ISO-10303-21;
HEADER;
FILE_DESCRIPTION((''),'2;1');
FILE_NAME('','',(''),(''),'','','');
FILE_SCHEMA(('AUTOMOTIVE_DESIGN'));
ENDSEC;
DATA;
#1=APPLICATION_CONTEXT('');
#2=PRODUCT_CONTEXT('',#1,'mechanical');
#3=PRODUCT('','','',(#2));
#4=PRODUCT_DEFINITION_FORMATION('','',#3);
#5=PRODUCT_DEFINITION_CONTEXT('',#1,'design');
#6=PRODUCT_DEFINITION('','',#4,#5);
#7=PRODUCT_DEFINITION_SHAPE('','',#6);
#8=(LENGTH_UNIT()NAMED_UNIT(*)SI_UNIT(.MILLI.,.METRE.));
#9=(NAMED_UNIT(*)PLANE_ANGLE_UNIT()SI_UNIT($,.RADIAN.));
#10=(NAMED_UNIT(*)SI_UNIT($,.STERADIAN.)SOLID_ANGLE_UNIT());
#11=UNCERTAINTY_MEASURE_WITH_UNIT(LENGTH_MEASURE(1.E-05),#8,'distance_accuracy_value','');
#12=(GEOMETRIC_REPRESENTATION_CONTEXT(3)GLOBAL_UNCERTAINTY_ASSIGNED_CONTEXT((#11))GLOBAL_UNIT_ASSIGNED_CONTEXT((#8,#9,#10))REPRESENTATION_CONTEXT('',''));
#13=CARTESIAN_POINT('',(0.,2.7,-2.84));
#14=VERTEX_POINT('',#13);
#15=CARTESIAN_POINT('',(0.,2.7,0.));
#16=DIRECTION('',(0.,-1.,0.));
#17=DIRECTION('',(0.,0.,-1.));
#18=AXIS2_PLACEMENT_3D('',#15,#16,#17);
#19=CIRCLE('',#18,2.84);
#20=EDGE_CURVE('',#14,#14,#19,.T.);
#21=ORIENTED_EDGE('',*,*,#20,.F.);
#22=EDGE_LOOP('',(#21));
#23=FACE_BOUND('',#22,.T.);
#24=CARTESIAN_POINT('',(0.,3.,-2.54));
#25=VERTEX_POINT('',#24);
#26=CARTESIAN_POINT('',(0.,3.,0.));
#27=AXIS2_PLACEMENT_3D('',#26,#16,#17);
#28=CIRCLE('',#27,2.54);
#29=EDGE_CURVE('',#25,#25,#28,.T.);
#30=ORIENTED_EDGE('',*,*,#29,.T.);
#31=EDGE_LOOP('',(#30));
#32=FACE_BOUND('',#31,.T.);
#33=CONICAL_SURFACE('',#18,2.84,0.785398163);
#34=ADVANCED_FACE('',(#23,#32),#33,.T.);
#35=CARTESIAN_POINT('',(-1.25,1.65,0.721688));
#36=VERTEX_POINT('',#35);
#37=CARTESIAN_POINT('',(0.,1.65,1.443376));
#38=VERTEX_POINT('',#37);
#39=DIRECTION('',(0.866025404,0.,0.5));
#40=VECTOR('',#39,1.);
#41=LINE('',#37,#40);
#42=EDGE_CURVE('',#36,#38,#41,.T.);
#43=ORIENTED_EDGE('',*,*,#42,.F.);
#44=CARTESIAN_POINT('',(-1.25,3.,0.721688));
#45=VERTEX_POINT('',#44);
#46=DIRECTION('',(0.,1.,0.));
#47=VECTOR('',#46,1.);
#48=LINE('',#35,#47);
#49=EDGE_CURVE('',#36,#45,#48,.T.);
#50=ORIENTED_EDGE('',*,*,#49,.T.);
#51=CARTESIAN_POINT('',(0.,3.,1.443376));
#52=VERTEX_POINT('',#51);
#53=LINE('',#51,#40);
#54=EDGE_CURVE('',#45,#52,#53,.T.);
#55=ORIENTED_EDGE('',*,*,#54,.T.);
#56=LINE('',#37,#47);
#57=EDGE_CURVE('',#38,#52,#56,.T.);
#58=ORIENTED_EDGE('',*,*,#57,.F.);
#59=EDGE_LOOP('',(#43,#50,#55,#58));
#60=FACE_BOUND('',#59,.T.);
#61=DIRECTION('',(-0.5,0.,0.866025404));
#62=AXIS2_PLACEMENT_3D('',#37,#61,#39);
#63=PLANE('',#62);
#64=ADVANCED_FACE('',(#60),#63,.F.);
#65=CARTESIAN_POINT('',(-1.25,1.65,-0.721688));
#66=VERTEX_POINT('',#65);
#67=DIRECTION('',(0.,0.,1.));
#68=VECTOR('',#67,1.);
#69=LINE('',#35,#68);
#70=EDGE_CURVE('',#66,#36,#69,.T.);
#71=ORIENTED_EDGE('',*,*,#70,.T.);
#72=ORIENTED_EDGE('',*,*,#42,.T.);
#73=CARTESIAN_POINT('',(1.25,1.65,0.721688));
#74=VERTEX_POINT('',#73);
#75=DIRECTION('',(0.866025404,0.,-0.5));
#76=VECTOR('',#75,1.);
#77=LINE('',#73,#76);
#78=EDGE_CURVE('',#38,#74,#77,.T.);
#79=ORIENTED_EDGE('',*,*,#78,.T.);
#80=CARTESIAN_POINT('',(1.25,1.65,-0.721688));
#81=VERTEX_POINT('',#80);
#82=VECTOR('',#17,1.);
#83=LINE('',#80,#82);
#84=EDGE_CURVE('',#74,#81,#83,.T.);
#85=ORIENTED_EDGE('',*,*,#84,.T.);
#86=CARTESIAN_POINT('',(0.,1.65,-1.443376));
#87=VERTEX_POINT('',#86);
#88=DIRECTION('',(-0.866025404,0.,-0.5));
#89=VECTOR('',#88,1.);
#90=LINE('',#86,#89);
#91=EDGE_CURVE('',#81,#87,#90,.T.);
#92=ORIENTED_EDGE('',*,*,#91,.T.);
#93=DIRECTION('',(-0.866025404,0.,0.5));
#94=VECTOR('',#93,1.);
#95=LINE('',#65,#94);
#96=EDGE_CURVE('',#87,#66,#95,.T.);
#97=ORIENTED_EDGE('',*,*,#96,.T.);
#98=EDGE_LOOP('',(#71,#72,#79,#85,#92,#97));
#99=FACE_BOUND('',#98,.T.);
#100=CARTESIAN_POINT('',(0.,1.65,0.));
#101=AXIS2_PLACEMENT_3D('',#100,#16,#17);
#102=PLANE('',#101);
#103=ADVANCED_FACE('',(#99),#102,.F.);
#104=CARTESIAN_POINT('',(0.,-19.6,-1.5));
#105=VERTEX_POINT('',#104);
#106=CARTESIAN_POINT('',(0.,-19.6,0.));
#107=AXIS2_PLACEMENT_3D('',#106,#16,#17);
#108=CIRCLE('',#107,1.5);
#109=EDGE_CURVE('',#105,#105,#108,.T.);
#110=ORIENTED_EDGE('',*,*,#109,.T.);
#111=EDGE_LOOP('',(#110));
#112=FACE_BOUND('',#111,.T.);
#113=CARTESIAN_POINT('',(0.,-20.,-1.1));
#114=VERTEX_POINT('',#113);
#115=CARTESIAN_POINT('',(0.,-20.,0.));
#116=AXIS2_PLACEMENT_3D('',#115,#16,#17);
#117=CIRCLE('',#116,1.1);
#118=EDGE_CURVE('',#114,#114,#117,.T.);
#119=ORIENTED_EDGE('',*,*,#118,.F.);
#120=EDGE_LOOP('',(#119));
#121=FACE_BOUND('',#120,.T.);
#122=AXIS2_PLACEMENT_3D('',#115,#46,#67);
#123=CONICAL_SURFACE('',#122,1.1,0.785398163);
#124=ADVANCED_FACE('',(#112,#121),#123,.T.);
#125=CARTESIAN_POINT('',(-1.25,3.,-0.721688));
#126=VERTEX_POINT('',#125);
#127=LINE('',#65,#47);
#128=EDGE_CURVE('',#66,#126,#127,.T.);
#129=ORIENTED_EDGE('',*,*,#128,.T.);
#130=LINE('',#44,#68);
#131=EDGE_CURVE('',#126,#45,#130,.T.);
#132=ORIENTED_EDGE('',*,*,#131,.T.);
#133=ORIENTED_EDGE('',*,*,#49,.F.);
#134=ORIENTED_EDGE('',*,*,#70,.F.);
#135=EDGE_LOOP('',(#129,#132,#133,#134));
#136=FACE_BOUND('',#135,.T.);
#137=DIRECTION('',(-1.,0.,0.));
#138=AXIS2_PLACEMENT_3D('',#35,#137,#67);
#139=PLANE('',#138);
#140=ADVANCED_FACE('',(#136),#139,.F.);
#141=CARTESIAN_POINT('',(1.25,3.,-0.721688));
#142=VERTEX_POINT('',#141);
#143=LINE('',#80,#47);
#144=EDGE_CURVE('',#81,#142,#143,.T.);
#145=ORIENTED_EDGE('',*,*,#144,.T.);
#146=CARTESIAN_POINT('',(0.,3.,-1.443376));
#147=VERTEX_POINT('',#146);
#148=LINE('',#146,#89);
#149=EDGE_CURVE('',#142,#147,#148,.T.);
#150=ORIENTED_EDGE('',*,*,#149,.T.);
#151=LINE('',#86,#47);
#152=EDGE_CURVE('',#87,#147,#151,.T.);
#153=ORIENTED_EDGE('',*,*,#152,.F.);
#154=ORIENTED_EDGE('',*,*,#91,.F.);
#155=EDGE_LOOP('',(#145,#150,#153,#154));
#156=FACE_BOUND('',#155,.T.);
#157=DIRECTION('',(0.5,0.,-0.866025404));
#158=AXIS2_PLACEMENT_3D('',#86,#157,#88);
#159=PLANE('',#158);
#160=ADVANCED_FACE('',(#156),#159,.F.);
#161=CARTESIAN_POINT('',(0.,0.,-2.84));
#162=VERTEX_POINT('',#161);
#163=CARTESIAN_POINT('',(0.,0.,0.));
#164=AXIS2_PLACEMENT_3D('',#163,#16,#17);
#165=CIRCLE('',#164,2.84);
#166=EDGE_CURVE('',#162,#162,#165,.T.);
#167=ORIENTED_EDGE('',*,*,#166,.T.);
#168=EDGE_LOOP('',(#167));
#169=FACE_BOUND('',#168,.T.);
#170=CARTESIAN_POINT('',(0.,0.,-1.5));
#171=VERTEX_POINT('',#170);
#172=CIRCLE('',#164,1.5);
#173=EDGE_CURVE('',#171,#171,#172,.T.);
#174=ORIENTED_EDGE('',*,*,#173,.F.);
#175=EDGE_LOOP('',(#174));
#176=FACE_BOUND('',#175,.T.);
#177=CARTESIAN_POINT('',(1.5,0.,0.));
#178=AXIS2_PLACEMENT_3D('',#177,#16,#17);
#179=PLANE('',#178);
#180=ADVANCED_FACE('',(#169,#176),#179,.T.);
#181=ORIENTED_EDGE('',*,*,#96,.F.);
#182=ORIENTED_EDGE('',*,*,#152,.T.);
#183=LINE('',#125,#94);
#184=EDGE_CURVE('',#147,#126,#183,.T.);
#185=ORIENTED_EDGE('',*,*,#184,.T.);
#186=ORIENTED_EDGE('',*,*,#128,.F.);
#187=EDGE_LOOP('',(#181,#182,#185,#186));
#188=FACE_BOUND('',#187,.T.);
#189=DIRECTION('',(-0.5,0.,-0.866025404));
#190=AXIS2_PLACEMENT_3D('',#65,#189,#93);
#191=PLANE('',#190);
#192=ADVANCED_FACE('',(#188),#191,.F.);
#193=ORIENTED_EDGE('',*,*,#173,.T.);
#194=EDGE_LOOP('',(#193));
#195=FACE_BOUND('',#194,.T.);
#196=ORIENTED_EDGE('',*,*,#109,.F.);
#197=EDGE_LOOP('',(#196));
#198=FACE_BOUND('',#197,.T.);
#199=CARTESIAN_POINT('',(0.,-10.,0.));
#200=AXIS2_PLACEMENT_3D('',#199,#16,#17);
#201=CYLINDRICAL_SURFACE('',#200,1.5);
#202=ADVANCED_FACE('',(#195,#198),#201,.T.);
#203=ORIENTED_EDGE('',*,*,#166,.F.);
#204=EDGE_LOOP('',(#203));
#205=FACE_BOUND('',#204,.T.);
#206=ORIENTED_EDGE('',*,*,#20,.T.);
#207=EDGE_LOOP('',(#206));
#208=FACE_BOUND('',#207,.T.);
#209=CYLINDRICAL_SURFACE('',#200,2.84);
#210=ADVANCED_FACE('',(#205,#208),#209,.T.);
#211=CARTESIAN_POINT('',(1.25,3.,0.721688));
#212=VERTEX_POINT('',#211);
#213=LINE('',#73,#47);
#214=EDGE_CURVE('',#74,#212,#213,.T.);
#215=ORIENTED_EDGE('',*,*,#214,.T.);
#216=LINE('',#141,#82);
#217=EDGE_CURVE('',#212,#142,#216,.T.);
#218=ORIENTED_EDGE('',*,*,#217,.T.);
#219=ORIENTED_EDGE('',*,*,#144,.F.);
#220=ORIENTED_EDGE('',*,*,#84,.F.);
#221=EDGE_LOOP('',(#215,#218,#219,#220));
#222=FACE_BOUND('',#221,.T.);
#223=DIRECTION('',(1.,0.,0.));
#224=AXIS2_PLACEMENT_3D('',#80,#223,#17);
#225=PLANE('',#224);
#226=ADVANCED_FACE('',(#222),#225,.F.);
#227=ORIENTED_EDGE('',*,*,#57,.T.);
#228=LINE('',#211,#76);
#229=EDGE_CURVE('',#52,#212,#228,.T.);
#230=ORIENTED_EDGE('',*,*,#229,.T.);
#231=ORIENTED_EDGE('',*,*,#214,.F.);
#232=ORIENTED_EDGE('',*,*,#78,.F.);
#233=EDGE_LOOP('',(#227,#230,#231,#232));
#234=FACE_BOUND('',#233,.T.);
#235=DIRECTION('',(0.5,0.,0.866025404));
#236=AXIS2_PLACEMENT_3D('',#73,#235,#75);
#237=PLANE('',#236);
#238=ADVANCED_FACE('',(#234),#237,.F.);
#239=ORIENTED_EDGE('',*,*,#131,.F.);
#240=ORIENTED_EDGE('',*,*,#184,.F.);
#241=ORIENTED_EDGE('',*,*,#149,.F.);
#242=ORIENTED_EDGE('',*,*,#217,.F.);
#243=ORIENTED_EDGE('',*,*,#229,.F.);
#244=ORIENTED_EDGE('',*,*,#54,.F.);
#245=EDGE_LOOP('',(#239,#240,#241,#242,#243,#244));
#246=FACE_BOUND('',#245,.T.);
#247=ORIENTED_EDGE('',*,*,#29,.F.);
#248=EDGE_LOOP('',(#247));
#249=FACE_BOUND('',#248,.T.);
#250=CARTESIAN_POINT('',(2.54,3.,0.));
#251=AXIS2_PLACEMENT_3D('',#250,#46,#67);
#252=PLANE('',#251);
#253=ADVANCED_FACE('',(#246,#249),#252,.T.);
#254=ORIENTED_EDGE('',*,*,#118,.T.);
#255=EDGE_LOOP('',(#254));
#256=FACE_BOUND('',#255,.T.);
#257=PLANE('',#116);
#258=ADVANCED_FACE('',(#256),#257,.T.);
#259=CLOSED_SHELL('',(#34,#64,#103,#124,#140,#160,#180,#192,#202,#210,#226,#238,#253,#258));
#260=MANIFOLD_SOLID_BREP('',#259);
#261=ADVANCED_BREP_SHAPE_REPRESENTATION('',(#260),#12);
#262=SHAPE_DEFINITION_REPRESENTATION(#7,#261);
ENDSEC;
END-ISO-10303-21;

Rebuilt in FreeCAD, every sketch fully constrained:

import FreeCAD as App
import Part
import Sketcher
Q = App.Units.Quantity

doc = App.newDocument("Part")
body = doc.addObject("PartDesign::Body", "Body")

# Sketch on XY plane
sketch1 = body.newObject("Sketcher::SketchObject", "Sketch")
sketch1.AttachmentSupport = (doc.getObject("XY_Plane"), [""])
sketch1.MapMode = "FlatFace"
sketch1.addGeometry(Part.LineSegment(App.Vector(0, -20, 0), App.Vector(1.1, -20, 0)), False)
sketch1.addGeometry(Part.LineSegment(App.Vector(1.1, -20, 0), App.Vector(1.5, -19.6, 0)), False)
sketch1.addGeometry(Part.LineSegment(App.Vector(1.5, -19.6, 0), App.Vector(1.5, 0, 0)), False)
sketch1.addGeometry(Part.LineSegment(App.Vector(1.5, 0, 0), App.Vector(2.84, 0, 0)), False)
sketch1.addGeometry(Part.LineSegment(App.Vector(2.84, 0, 0), App.Vector(2.84, 2.7, 0)), False)
sketch1.addGeometry(Part.LineSegment(App.Vector(2.84, 2.7, 0), App.Vector(2.54, 3, 0)), False)
sketch1.addGeometry(Part.LineSegment(App.Vector(2.54, 3, 0), App.Vector(0, 3, 0)), False)
sketch1.addGeometry(Part.LineSegment(App.Vector(0, 3, 0), App.Vector(0, -20, 0)), False)
sketch1.addConstraint(Sketcher.Constraint("Coincident", 0, 2, 1, 1))
sketch1.addConstraint(Sketcher.Constraint("Coincident", 1, 2, 2, 1))
sketch1.addConstraint(Sketcher.Constraint("Coincident", 2, 2, 3, 1))
sketch1.addConstraint(Sketcher.Constraint("Coincident", 3, 2, 4, 1))
sketch1.addConstraint(Sketcher.Constraint("Coincident", 4, 2, 5, 1))
sketch1.addConstraint(Sketcher.Constraint("Coincident", 5, 2, 6, 1))
sketch1.addConstraint(Sketcher.Constraint("Coincident", 6, 2, 7, 1))
sketch1.addConstraint(Sketcher.Constraint("Coincident", 7, 2, 0, 1))
sketch1.addConstraint(Sketcher.Constraint("Horizontal", 0))
sketch1.addConstraint(Sketcher.Constraint("Vertical", 2))
sketch1.addConstraint(Sketcher.Constraint("Horizontal", 3))
sketch1.addConstraint(Sketcher.Constraint("Vertical", 4))
sketch1.addConstraint(Sketcher.Constraint("Horizontal", 6))
sketch1.addConstraint(Sketcher.Constraint("Vertical", 7))
sketch1.addConstraint(Sketcher.Constraint("PointOnObject", 2, 2, -1))
sketch1.addConstraint(Sketcher.Constraint("PointOnObject", 6, 2, -2))
sketch1.addConstraint(Sketcher.Constraint("Perpendicular", 1, 5))
sketch1.addConstraint(Sketcher.Constraint("DistanceY", 7, 2, 7, 1, 23.0))
sketch1.addConstraint(Sketcher.Constraint("Angle", 1, Q("45 deg")))
sketch1.addConstraint(Sketcher.Constraint("DistanceX", 0, 1, 0, 2, 1.1))
sketch1.addConstraint(Sketcher.Constraint("DistanceY", 2, 1, 2, 2, 19.6))
sketch1.addConstraint(Sketcher.Constraint("DistanceY", 4, 1, 4, 2, 2.7))
sketch1.addConstraint(Sketcher.Constraint("DistanceY", 0, 2, -1, 1, 20.0))
sketch1.addConstraint(Sketcher.Constraint("DistanceX", 3, 1, 3, 2, 1.34))
revolution = body.newObject("PartDesign::Revolution", "Revolution")
revolution.Profile = sketch1
revolution.ReferenceAxis = (sketch1, ["V_Axis"])
revolution.Angle = 360

# Sketch on XZ plane
sketch2 = body.newObject("Sketcher::SketchObject", "Sketch001")
sketch2.AttachmentSupport = (doc.getObject("XZ_Plane"), [""])
sketch2.MapMode = "FlatFace"
sketch2.AttachmentOffset = App.Placement(App.Vector(0, 0, -3), App.Rotation())
sketch2.addGeometry(Part.LineSegment(App.Vector(0, 1.4, 0), App.Vector(1.2, 0.7, 0)), False)
sketch2.addGeometry(Part.LineSegment(App.Vector(1.2, 0.7, 0), App.Vector(1.2, -0.7, 0)), False)
sketch2.addGeometry(Part.LineSegment(App.Vector(1.2, -0.7, 0), App.Vector(0, -1.4, 0)), False)
sketch2.addGeometry(Part.LineSegment(App.Vector(0, -1.4, 0), App.Vector(-1.2, -0.7, 0)), False)
sketch2.addGeometry(Part.LineSegment(App.Vector(-1.2, -0.7, 0), App.Vector(-1.2, 0.7, 0)), False)
sketch2.addGeometry(Part.LineSegment(App.Vector(-1.2, 0.7, 0), App.Vector(0, 1.4, 0)), False)
sketch2.addConstraint(Sketcher.Constraint("Coincident", 0, 2, 1, 1))
sketch2.addConstraint(Sketcher.Constraint("Coincident", 1, 2, 2, 1))
sketch2.addConstraint(Sketcher.Constraint("Coincident", 2, 2, 3, 1))
sketch2.addConstraint(Sketcher.Constraint("Coincident", 3, 2, 4, 1))
sketch2.addConstraint(Sketcher.Constraint("Coincident", 4, 2, 5, 1))
sketch2.addConstraint(Sketcher.Constraint("Coincident", 5, 2, 0, 1))
sketch2.addConstraint(Sketcher.Constraint("Vertical", 1))
sketch2.addConstraint(Sketcher.Constraint("Vertical", 4))
sketch2.addConstraint(Sketcher.Constraint("Symmetric", 0, 2, 3, 2, -1, 1))
sketch2.addConstraint(Sketcher.Constraint("Symmetric", 2, 2, 5, 2, -1, 1))
sketch2.addConstraint(Sketcher.Constraint("PointOnObject", 2, 2, -2))
sketch2.addConstraint(Sketcher.Constraint("Parallel", 2, 5))
sketch2.addConstraint(Sketcher.Constraint("Horizontal", 1, 2, 3, 2))
sketch2.addConstraint(Sketcher.Constraint("Angle", 0, Q("-30 deg")))
sketch2.addConstraint(Sketcher.Constraint("DistanceX", 3, 2, 1, 2, 2.5))
sketch2.addConstraint(Sketcher.Constraint("DistanceY", 1, 2, 1, 1, 1.443376))
pocket1 = body.newObject("PartDesign::Pocket", "Pocket")
pocket1.Profile = sketch2
pocket1.Length = 1.35
pocket1.Reversed = True

doc.recompute()
